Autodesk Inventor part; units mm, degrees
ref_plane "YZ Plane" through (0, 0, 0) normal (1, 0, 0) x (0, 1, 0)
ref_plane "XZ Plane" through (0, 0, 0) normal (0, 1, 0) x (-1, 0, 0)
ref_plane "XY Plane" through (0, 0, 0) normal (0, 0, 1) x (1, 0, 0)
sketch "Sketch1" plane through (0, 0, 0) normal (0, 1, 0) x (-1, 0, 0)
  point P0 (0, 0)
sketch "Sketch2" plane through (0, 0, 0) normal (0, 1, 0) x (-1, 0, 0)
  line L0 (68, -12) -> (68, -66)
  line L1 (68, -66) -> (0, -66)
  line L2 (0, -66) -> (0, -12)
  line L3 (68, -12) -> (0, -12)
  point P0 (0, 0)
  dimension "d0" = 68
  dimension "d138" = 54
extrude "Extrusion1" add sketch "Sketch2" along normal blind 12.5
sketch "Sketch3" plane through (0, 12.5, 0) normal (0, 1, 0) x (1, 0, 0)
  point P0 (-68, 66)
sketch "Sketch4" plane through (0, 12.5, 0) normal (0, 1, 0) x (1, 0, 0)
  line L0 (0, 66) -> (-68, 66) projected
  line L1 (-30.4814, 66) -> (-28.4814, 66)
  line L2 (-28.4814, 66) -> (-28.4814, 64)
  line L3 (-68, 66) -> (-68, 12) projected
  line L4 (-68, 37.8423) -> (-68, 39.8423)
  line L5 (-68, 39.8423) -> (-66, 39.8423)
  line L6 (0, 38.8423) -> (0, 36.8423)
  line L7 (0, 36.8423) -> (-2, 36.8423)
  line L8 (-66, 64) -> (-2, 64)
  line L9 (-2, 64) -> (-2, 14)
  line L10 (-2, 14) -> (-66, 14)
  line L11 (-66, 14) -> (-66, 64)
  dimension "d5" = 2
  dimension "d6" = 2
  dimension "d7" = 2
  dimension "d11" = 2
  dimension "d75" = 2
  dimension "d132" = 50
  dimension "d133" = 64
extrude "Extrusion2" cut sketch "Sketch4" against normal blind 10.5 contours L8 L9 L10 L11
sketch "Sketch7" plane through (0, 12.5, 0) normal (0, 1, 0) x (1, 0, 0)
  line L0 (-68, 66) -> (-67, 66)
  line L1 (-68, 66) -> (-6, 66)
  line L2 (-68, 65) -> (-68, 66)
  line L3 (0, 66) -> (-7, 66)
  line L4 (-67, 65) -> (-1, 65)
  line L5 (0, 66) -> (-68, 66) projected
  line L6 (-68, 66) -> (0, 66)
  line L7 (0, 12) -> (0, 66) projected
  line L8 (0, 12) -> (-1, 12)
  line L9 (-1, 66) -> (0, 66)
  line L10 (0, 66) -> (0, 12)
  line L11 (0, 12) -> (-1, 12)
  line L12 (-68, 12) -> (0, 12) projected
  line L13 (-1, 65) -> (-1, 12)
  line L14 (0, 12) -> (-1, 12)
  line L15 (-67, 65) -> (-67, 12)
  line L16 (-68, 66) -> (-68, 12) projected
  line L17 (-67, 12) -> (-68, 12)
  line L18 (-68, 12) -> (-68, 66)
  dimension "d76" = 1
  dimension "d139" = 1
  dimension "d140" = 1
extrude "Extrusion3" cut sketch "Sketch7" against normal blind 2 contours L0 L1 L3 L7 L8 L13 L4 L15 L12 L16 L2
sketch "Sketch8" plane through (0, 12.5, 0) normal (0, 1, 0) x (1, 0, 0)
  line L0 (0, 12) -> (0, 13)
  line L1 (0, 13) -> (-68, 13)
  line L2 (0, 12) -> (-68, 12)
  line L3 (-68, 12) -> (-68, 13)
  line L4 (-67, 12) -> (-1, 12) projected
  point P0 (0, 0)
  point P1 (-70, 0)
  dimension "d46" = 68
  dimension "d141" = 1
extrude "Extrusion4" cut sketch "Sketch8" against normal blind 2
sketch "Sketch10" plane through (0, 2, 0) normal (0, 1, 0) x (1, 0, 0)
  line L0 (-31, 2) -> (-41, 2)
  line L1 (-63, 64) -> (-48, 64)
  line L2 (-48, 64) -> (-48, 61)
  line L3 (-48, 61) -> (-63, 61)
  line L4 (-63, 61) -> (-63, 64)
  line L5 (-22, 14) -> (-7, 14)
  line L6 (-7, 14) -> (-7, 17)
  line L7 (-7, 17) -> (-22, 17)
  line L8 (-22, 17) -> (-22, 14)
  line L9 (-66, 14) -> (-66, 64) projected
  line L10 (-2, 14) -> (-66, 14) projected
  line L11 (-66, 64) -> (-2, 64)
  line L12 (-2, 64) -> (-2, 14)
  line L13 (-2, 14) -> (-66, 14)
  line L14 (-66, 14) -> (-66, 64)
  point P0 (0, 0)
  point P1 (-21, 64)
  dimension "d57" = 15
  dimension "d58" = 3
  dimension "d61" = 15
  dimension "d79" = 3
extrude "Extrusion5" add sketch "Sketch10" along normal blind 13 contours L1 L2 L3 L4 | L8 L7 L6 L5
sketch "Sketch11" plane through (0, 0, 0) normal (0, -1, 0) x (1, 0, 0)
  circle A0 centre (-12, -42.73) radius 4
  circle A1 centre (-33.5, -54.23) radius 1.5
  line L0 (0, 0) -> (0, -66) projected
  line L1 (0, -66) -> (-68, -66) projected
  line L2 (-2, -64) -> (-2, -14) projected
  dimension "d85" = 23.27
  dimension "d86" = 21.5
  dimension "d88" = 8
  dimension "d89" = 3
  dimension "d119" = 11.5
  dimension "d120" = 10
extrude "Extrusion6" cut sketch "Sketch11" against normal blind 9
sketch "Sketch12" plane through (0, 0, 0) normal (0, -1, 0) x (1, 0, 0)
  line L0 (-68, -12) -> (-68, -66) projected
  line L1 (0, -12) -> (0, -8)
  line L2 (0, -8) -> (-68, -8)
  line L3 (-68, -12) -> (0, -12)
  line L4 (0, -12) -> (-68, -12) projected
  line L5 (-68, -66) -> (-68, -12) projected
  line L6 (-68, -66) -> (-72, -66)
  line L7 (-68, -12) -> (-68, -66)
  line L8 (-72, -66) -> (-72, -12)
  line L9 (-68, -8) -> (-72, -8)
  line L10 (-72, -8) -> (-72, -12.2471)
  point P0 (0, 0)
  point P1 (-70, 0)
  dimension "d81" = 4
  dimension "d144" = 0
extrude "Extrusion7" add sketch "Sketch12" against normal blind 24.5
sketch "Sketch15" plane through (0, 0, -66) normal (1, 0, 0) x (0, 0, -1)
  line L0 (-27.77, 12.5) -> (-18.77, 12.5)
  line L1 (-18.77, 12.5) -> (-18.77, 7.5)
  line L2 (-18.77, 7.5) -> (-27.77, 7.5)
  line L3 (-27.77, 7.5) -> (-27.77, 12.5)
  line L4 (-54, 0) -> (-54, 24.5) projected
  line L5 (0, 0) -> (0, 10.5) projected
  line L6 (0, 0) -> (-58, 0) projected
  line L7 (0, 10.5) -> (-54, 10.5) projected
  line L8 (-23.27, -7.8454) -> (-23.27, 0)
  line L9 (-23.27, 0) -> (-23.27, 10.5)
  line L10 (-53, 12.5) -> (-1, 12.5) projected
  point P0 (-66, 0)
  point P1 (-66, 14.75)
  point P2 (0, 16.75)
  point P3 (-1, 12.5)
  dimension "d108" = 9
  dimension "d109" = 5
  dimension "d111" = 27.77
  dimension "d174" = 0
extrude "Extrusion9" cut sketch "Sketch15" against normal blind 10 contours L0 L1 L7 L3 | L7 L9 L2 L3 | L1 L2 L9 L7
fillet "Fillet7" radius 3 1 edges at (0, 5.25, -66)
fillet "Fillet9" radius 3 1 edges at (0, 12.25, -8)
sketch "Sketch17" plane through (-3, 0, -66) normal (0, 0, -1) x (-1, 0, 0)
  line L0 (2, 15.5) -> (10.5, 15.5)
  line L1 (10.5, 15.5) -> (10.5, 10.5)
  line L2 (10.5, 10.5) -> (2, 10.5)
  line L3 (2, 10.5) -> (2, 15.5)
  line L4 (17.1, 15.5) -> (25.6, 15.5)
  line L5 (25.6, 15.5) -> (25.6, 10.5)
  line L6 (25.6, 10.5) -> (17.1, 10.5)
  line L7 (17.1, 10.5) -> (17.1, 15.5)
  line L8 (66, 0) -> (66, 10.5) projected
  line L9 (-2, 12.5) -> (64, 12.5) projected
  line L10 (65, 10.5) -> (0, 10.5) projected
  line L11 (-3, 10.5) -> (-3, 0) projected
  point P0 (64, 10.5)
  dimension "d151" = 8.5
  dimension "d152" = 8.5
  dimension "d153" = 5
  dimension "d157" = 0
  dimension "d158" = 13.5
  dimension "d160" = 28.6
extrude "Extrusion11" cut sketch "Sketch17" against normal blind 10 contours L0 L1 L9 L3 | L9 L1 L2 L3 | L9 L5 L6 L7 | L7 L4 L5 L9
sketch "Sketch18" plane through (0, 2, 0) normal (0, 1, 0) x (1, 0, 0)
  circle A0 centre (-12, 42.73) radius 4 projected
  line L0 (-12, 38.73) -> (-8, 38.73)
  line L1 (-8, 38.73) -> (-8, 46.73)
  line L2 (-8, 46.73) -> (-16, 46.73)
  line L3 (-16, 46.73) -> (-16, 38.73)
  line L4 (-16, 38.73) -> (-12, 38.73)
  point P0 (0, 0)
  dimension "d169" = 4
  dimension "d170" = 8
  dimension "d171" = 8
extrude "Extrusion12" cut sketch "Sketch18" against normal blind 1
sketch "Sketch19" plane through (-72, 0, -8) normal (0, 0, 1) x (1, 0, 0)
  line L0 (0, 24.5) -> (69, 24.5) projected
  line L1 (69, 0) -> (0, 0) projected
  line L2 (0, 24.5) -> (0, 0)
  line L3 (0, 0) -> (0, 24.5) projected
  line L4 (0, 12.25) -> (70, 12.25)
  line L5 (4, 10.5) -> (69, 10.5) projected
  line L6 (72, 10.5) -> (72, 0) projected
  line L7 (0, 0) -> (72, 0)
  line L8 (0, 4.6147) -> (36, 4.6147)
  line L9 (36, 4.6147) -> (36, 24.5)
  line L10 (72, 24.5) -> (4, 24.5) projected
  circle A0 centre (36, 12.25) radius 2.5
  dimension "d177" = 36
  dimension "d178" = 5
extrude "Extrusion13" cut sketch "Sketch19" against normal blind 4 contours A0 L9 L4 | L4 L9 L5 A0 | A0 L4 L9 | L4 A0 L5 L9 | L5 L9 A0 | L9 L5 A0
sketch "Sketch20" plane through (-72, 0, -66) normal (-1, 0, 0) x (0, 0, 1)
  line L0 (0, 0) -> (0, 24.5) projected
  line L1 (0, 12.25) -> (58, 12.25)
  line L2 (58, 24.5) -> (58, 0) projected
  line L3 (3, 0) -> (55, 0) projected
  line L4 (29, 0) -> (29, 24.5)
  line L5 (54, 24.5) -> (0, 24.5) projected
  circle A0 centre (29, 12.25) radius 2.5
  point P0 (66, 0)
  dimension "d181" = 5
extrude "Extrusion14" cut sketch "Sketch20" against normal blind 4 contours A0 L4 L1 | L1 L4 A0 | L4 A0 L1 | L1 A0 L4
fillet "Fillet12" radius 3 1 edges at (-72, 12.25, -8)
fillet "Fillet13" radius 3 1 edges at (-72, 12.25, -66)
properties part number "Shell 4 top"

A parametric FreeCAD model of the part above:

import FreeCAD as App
import Part
import Sketcher


def edges_at(feature, points):
    """Names of the edges that pass closest to the given points."""
    edges = feature.Shape.Edges
    near = lambda p: min(range(len(edges)), key=lambda i: edges[i].distToShape(Part.Vertex(*p))[0])
    return sorted({f"Edge{near(p) + 1}" for p in points})

doc = App.newDocument("Part")
body = doc.addObject("PartDesign::Body", "Body")

sketch1 = body.newObject("Sketcher::SketchObject", "Sketch")
sketch1.AttachmentSupport = (doc.getObject("XZ_Plane"), [""])
sketch1.MapMode = "FlatFace"
sketch1.addGeometry([
    Part.LineSegment(App.Vector(-68, -66, 0), App.Vector(-68, -12, 0)),
    Part.LineSegment(App.Vector(-68, -12, 0), App.Vector(0, -12, 0)),
    Part.LineSegment(App.Vector(0, -12, 0), App.Vector(0, -66, 0)),
    Part.LineSegment(App.Vector(0, -66, 0), App.Vector(-68, -66, 0)),
], False)
sketch1.addConstraint([
    Sketcher.Constraint("Coincident", 0, 2, 1, 1),
    Sketcher.Constraint("Coincident", 1, 2, 2, 1),
    Sketcher.Constraint("Coincident", 2, 2, 3, 1),
    Sketcher.Constraint("Coincident", 3, 2, 0, 1),
    Sketcher.Constraint("Vertical", 0),
    Sketcher.Constraint("Horizontal", 1),
    Sketcher.Constraint("Vertical", 2),
    Sketcher.Constraint("Horizontal", 3),
    Sketcher.Constraint("PointOnObject", 1, 2, -2),
    Sketcher.Constraint("DistanceX", 1, 1, 1, 2, 68.0),
    Sketcher.Constraint("DistanceY", 0, 1, 0, 2, 54.0),
    Sketcher.Constraint("DistanceY", 0, 2, -1, 1, 12.0),
])
pad1 = body.newObject("PartDesign::Pad", "Pad")
pad1.Profile = sketch1
pad1.Length = 12.5
pad1.Reversed = True

sketch2 = body.newObject("Sketcher::SketchObject", "Sketch001")
sketch2.AttachmentSupport = (doc.getObject("XZ_Plane"), [""])
sketch2.MapMode = "FlatFace"
sketch2.AttachmentOffset = App.Placement(App.Vector(0, 0, -12.5), App.Rotation())
sketch2.addGeometry([
    Part.LineSegment(App.Vector(-2, -64, 0), App.Vector(-66, -64, 0)),
    Part.LineSegment(App.Vector(-66, -64, 0), App.Vector(-66, -14, 0)),
    Part.LineSegment(App.Vector(-66, -14, 0), App.Vector(-2, -14, 0)),
    Part.LineSegment(App.Vector(-2, -14, 0), App.Vector(-2, -64, 0)),
], False)
sketch2.addConstraint([
    Sketcher.Constraint("Coincident", 0, 2, 1, 1),
    Sketcher.Constraint("Coincident", 1, 2, 2, 1),
    Sketcher.Constraint("Coincident", 2, 2, 3, 1),
    Sketcher.Constraint("Coincident", 3, 2, 0, 1),
    Sketcher.Constraint("Horizontal", 0),
    Sketcher.Constraint("Vertical", 1),
    Sketcher.Constraint("Horizontal", 2),
    Sketcher.Constraint("Vertical", 3),
    Sketcher.Constraint("DistanceX", 0, 2, 0, 1, 64.0),
    Sketcher.Constraint("DistanceY", 1, 1, 1, 2, 50.0),
    Sketcher.Constraint("DistanceY", 0, 2, -1, 1, 64.0),
    Sketcher.Constraint("DistanceX", 2, 2, -1, 1, 2.0),
])
pocket1 = body.newObject("PartDesign::Pocket", "Pocket")
pocket1.Profile = sketch2
pocket1.Length = 10.5
pocket1.Reversed = True

sketch3 = body.newObject("Sketcher::SketchObject", "Sketch002")
sketch3.AttachmentSupport = (doc.getObject("XZ_Plane"), [""])
sketch3.MapMode = "FlatFace"
sketch3.AttachmentOffset = App.Placement(App.Vector(0, 0, -12.5), App.Rotation())
sketch3.addGeometry([
    Part.LineSegment(App.Vector(0, -66, 0), App.Vector(-68, -66, 0)),
    Part.LineSegment(App.Vector(-68, -66, 0), App.Vector(-68, -12, 0)),
    Part.LineSegment(App.Vector(-68, -12, 0), App.Vector(-67, -12, 0)),
    Part.LineSegment(App.Vector(-67, -12, 0), App.Vector(-67, -65, 0)),
    Part.LineSegment(App.Vector(-67, -65, 0), App.Vector(-1, -65, 0)),
    Part.LineSegment(App.Vector(-1, -65, 0), App.Vector(-1, -12, 0)),
    Part.LineSegment(App.Vector(-1, -12, 0), App.Vector(0, -12, 0)),
    Part.LineSegment(App.Vector(0, -12, 0), App.Vector(0, -66, 0)),
], False)
sketch3.addConstraint([
    Sketcher.Constraint("Coincident", 0, 2, 1, 1),
    Sketcher.Constraint("Coincident", 1, 2, 2, 1),
    Sketcher.Constraint("Coincident", 2, 2, 3, 1),
    Sketcher.Constraint("Coincident", 3, 2, 4, 1),
    Sketcher.Constraint("Coincident", 4, 2, 5, 1),
    Sketcher.Constraint("Coincident", 5, 2, 6, 1),
    Sketcher.Constraint("Coincident", 6, 2, 7, 1),
    Sketcher.Constraint("Coincident", 7, 2, 0, 1),
    Sketcher.Constraint("Horizontal", 0),
    Sketcher.Constraint("Vertical", 1),
    Sketcher.Constraint("Horizontal", 2),
    Sketcher.Constraint("Vertical", 3),
    Sketcher.Constraint("Horizontal", 4),
    Sketcher.Constraint("Vertical", 5),
    Sketcher.Constraint("Horizontal", 6),
    Sketcher.Constraint("Vertical", 7),
    Sketcher.Constraint("PointOnObject", 6, 2, -2),
    Sketcher.Constraint("Horizontal", 2, 2, 5, 2),
    Sketcher.Constraint("Equal", 2, 6),
    Sketcher.Constraint("DistanceX", 2, 1, 2, 2, 1.0),
    Sketcher.Constraint("DistanceY", 0, 2, 3, 2, 1.0),
    Sketcher.Constraint("DistanceX", 0, 2, 0, 1, 68.0),
    Sketcher.Constraint("DistanceY", 1, 1, 1, 2, 54.0),
    Sketcher.Constraint("DistanceY", 0, 2, -1, 1, 66.0),
])
pocket2 = body.newObject("PartDesign::Pocket", "Pocket001")
pocket2.Profile = sketch3
pocket2.Length = 2
pocket2.Reversed = True

sketch4 = body.newObject("Sketcher::SketchObject", "Sketch003")
sketch4.AttachmentSupport = (doc.getObject("XZ_Plane"), [""])
sketch4.MapMode = "FlatFace"
sketch4.AttachmentOffset = App.Placement(App.Vector(0, 0, -12.5), App.Rotation())
sketch4.addGeometry([
    Part.LineSegment(App.Vector(-68, -12, 0), App.Vector(0, -12, 0)),
    Part.LineSegment(App.Vector(0, -12, 0), App.Vector(0, -13, 0)),
    Part.LineSegment(App.Vector(0, -13, 0), App.Vector(-68, -13, 0)),
    Part.LineSegment(App.Vector(-68, -13, 0), App.Vector(-68, -12, 0)),
], False)
sketch4.addConstraint([
    Sketcher.Constraint("Coincident", 0, 2, 1, 1),
    Sketcher.Constraint("Coincident", 1, 2, 2, 1),
    Sketcher.Constraint("Coincident", 2, 2, 3, 1),
    Sketcher.Constraint("Coincident", 3, 2, 0, 1),
    Sketcher.Constraint("Horizontal", 0),
    Sketcher.Constraint("Vertical", 1),
    Sketcher.Constraint("Horizontal", 2),
    Sketcher.Constraint("Vertical", 3),
    Sketcher.Constraint("PointOnObject", 0, 2, -2),
    Sketcher.Constraint("DistanceX", 0, 1, 0, 2, 68.0),
    Sketcher.Constraint("DistanceY", 1, 2, 1, 1, 1.0),
    Sketcher.Constraint("DistanceY", 0, 2, -1, 1, 12.0),
])
pocket3 = body.newObject("PartDesign::Pocket", "Pocket002")
pocket3.Profile = sketch4
pocket3.Length = 2
pocket3.Reversed = True

sketch5 = body.newObject("Sketcher::SketchObject", "Sketch004")
sketch5.AttachmentSupport = (doc.getObject("XZ_Plane"), [""])
sketch5.MapMode = "FlatFace"
sketch5.AttachmentOffset = App.Placement(App.Vector(0, 0, -2), App.Rotation())
sketch5.addGeometry([
    Part.LineSegment(App.Vector(-48, -64, 0), App.Vector(-63, -64, 0)),
    Part.LineSegment(App.Vector(-63, -64, 0), App.Vector(-63, -61, 0)),
    Part.LineSegment(App.Vector(-63, -61, 0), App.Vector(-48, -61, 0)),
    Part.LineSegment(App.Vector(-48, -61, 0), App.Vector(-48, -64, 0)),
    Part.LineSegment(App.Vector(-22, -17, 0), App.Vector(-22, -14, 0)),
    Part.LineSegment(App.Vector(-22, -14, 0), App.Vector(-7, -14, 0)),
    Part.LineSegment(App.Vector(-7, -14, 0), App.Vector(-7, -17, 0)),
    Part.LineSegment(App.Vector(-7, -17, 0), App.Vector(-22, -17, 0)),
], False)
sketch5.addConstraint([
    Sketcher.Constraint("Coincident", 0, 2, 1, 1),
    Sketcher.Constraint("Coincident", 1, 2, 2, 1),
    Sketcher.Constraint("Coincident", 2, 2, 3, 1),
    Sketcher.Constraint("Coincident", 3, 2, 0, 1),
    Sketcher.Constraint("Coincident", 4, 2, 5, 1),
    Sketcher.Constraint("Coincident", 5, 2, 6, 1),
    Sketcher.Constraint("Coincident", 6, 2, 7, 1),
    Sketcher.Constraint("Coincident", 7, 2, 4, 1),
    Sketcher.Constraint("Horizontal", 0),
    Sketcher.Constraint("Vertical", 1),
    Sketcher.Constraint("Horizontal", 2),
    Sketcher.Constraint("Vertical", 3),
    Sketcher.Constraint("Vertical", 4),
    Sketcher.Constraint("Horizontal", 5),
    Sketcher.Constraint("Vertical", 6),
    Sketcher.Constraint("Horizontal", 7),
    Sketcher.Constraint("Equal", 2, 5),
    Sketcher.Constraint("Equal", 3, 4),
    Sketcher.Constraint("DistanceX", 0, 2, 0, 1, 15.0),
    Sketcher.Constraint("DistanceY", 1, 1, 1, 2, 3.0),
    Sketcher.Constraint("DistanceX", 0, 2, -1, 1, 63.0),
    Sketcher.Constraint("DistanceY", 0, 2, -1, 1, 64.0),
    Sketcher.Constraint("DistanceX", 4, 2, -1, 1, 22.0),
    Sketcher.Constraint("DistanceY", 4, 2, -1, 1, 14.0),
])
pad2 = body.newObject("PartDesign::Pad", "Pad001")
pad2.Profile = sketch5
pad2.Length = 13
pad2.Reversed = True

sketch6 = body.newObject("Sketcher::SketchObject", "Sketch005")
sketch6.AttachmentSupport = (doc.getObject("XZ_Plane"), [""])
sketch6.MapMode = "FlatFace"
sketch6.addGeometry([
    Part.Circle(App.Vector(-12, -42.73, 0), App.Vector(0, 0, 1), 4),
    Part.Circle(App.Vector(-33.5, -54.23, 0), App.Vector(0, 0, 1), 1.5),
], False)
sketch6.addConstraint([
    Sketcher.Constraint("Diameter", 0, 8.0),
    Sketcher.Constraint("Diameter", 1, 3.0),
    Sketcher.Constraint("DistanceX", 1, 3, 0, 3, 21.5),
    Sketcher.Constraint("DistanceY", 1, 3, 0, 3, 11.5),
    Sketcher.Constraint("DistanceX", 0, 3, -1, 1, 12.0),
    Sketcher.Constraint("DistanceY", 0, 3, -1, 1, 42.73),
])
pocket4 = body.newObject("PartDesign::Pocket", "Pocket003")
pocket4.Profile = sketch6
pocket4.Length = 9

sketch7 = body.newObject("Sketcher::SketchObject", "Sketch006")
sketch7.AttachmentSupport = (doc.getObject("XZ_Plane"), [""])
sketch7.MapMode = "FlatFace"
sketch7.addGeometry([
    Part.LineSegment(App.Vector(-68, -66, 0), App.Vector(-68, -12, 0)),
    Part.LineSegment(App.Vector(-68, -12, 0), App.Vector(0, -12, 0)),
    Part.LineSegment(App.Vector(0, -12, 0), App.Vector(0, -8, 0)),
    Part.LineSegment(App.Vector(0, -8, 0), App.Vector(-72, -8, 0)),
    Part.LineSegment(App.Vector(-72, -8, 0), App.Vector(-72, -66, 0)),
    Part.LineSegment(App.Vector(-72, -66, 0), App.Vector(-68, -66, 0)),
], False)
sketch7.addConstraint([
    Sketcher.Constraint("Coincident", 0, 2, 1, 1),
    Sketcher.Constraint("Coincident", 1, 2, 2, 1),
    Sketcher.Constraint("Coincident", 2, 2, 3, 1),
    Sketcher.Constraint("Coincident", 3, 2, 4, 1),
    Sketcher.Constraint("Coincident", 4, 2, 5, 1),
    Sketcher.Constraint("Coincident", 5, 2, 0, 1),
    Sketcher.Constraint("Vertical", 0),
    Sketcher.Constraint("Horizontal", 1),
    Sketcher.Constraint("Vertical", 2),
    Sketcher.Constraint("Horizontal", 3),
    Sketcher.Constraint("Vertical", 4),
    Sketcher.Constraint("Horizontal", 5),
    Sketcher.Constraint("PointOnObject", 1, 2, -2),
    Sketcher.Constraint("Equal", 5, 2),
    Sketcher.Constraint("DistanceX", 5, 1, 5, 2, 4.0),
    Sketcher.Constraint("DistanceX", 1, 1, 1, 2, 68.0),
    Sketcher.Constraint("DistanceY", 0, 1, 0, 2, 54.0),
    Sketcher.Constraint("DistanceY", 0, 2, -1, 1, 12.0),
])
pad3 = body.newObject("PartDesign::Pad", "Pad002")
pad3.Profile = sketch7
pad3.Length = 24.5
pad3.Reversed = True

sketch8 = body.newObject("Sketcher::SketchObject", "Sketch007")
sketch8.AttachmentSupport = (doc.getObject("YZ_Plane"), [""])
sketch8.MapMode = "FlatFace"
sketch8.addGeometry([
    Part.LineSegment(App.Vector(12.5, -47.23, 0), App.Vector(12.5, -38.23, 0)),
    Part.LineSegment(App.Vector(12.5, -38.23, 0), App.Vector(7.5, -38.23, 0)),
    Part.LineSegment(App.Vector(7.5, -38.23, 0), App.Vector(7.5, -47.23, 0)),
    Part.LineSegment(App.Vector(7.5, -47.23, 0), App.Vector(12.5, -47.23, 0)),
], False)
sketch8.addConstraint([
    Sketcher.Constraint("Coincident", 0, 2, 1, 1),
    Sketcher.Constraint("Coincident", 1, 2, 2, 1),
    Sketcher.Constraint("Coincident", 2, 2, 3, 1),
    Sketcher.Constraint("Coincident", 3, 2, 0, 1),
    Sketcher.Constraint("Vertical", 0),
    Sketcher.Constraint("Horizontal", 1),
    Sketcher.Constraint("Vertical", 2),
    Sketcher.Constraint("Horizontal", 3),
    Sketcher.Constraint("DistanceX", 1, 2, 1, 1, 5.0),
    Sketcher.Constraint("DistanceY", 0, 1, 0, 2, 9.0),
    Sketcher.Constraint("DistanceX", -1, 1, 0, 2, 12.5),
    Sketcher.Constraint("DistanceY", 0, 2, -1, 1, 38.23),
])
pocket5 = body.newObject("PartDesign::Pocket", "Pocket004")
pocket5.Profile = sketch8
pocket5.Length = 10
doc.recompute()

fillet = body.newObject("PartDesign::Fillet", "Fillet")
fillet.Base = (pocket5, edges_at(pocket5, [(0, 5.25, -66)]))
fillet.Radius = 3
doc.recompute()

fillet2 = body.newObject("PartDesign::Fillet", "Fillet001")
fillet2.Base = (fillet, edges_at(fillet, [(0, 12.25, -8)]))
fillet2.Radius = 3

sketch9 = body.newObject("Sketcher::SketchObject", "Sketch008")
sketch9.AttachmentSupport = (doc.getObject("XY_Plane"), [""])
sketch9.MapMode = "FlatFace"
sketch9.AttachmentOffset = App.Placement(App.Vector(0, 0, -66), App.Rotation())
sketch9.addGeometry([
    Part.LineSegment(App.Vector(-13.5, 15.5, 0), App.Vector(-5, 15.5, 0)),
    Part.LineSegment(App.Vector(-5, 15.5, 0), App.Vector(-5, 10.5, 0)),
    Part.LineSegment(App.Vector(-5, 10.5, 0), App.Vector(-13.5, 10.5, 0)),
    Part.LineSegment(App.Vector(-13.5, 10.5, 0), App.Vector(-13.5, 15.5, 0)),
    Part.LineSegment(App.Vector(-28.6, 10.5, 0), App.Vector(-28.6, 15.5, 0)),
    Part.LineSegment(App.Vector(-28.6, 15.5, 0), App.Vector(-20.1, 15.5, 0)),
    Part.LineSegment(App.Vector(-20.1, 15.5, 0), App.Vector(-20.1, 10.5, 0)),
    Part.LineSegment(App.Vector(-20.1, 10.5, 0), App.Vector(-28.6, 10.5, 0)),
], False)
sketch9.addConstraint([
    Sketcher.Constraint("Coincident", 0, 2, 1, 1),
    Sketcher.Constraint("Coincident", 1, 2, 2, 1),
    Sketcher.Constraint("Coincident", 2, 2, 3, 1),
    Sketcher.Constraint("Coincident", 3, 2, 0, 1),
    Sketcher.Constraint("Coincident", 4, 2, 5, 1),
    Sketcher.Constraint("Coincident", 5, 2, 6, 1),
    Sketcher.Constraint("Coincident", 6, 2, 7, 1),
    Sketcher.Constraint("Coincident", 7, 2, 4, 1),
    Sketcher.Constraint("Horizontal", 0),
    Sketcher.Constraint("Vertical", 1),
    Sketcher.Constraint("Horizontal", 2),
    Sketcher.Constraint("Vertical", 3),
    Sketcher.Constraint("Vertical", 4),
    Sketcher.Constraint("Horizontal", 5),
    Sketcher.Constraint("Vertical", 6),
    Sketcher.Constraint("Horizontal", 7),
    Sketcher.Constraint("Horizontal", 3, 2, 4, 2),
    Sketcher.Constraint("Horizontal", 2, 2, 6, 2),
    Sketcher.Constraint("Equal", 2, 5),
    Sketcher.Constraint("DistanceY", 1, 2, 1, 1, 5.0),
    Sketcher.Constraint("DistanceX", 0, 1, 0, 2, 8.5),
    Sketcher.Constraint("DistanceX", 0, 2, -1, 1, 5.0),
    Sketcher.Constraint("DistanceX", 4, 2, -1, 1, 28.6),
    Sketcher.Constraint("DistanceY", -1, 1, 0, 2, 15.5),
])
pocket6 = body.newObject("PartDesign::Pocket", "Pocket005")
pocket6.Profile = sketch9
pocket6.Length = 10
pocket6.Reversed = True

sketch10 = body.newObject("Sketcher::SketchObject", "Sketch009")
sketch10.AttachmentSupport = (doc.getObject("XZ_Plane"), [""])
sketch10.MapMode = "FlatFace"
sketch10.AttachmentOffset = App.Placement(App.Vector(0, 0, -2), App.Rotation())
sketch10.addGeometry([
    Part.LineSegment(App.Vector(-16, -38.73, 0), App.Vector(-8, -38.73, 0)),
    Part.LineSegment(App.Vector(-8, -38.73, 0), App.Vector(-8, -46.73, 0)),
    Part.LineSegment(App.Vector(-8, -46.73, 0), App.Vector(-16, -46.73, 0)),
    Part.LineSegment(App.Vector(-16, -46.73, 0), App.Vector(-16, -38.73, 0)),
], False)
sketch10.addConstraint([
    Sketcher.Constraint("Coincident", 0, 2, 1, 1),
    Sketcher.Constraint("Coincident", 1, 2, 2, 1),
    Sketcher.Constraint("Coincident", 2, 2, 3, 1),
    Sketcher.Constraint("Coincident", 3, 2, 0, 1),
    Sketcher.Constraint("Horizontal", 0),
    Sketcher.Constraint("Vertical", 1),
    Sketcher.Constraint("Horizontal", 2),
    Sketcher.Constraint("Vertical", 3),
    Sketcher.Constraint("Equal", 2, 1),
    Sketcher.Constraint("DistanceX", 0, 1, 0, 2, 8.0),
    Sketcher.Constraint("DistanceX", 0, 2, -1, 1, 8.0),
    Sketcher.Constraint("DistanceY", 0, 2, -1, 1, 38.73),
])
pocket7 = body.newObject("PartDesign::Pocket", "Pocket006")
pocket7.Profile = sketch10
pocket7.Length = 1
pocket7.Reversed = True

sketch11 = body.newObject("Sketcher::SketchObject", "Sketch010")
sketch11.AttachmentSupport = (doc.getObject("XY_Plane"), [""])
sketch11.MapMode = "FlatFace"
sketch11.AttachmentOffset = App.Placement(App.Vector(0, 0, -8), App.Rotation())
sketch11.addGeometry(Part.Circle(App.Vector(-36, 12.25, 0), App.Vector(0, 0, 1), 2.5), False)
sketch11.addConstraint([
    Sketcher.Constraint("Diameter", 0, 5.0),
    Sketcher.Constraint("DistanceX", 0, 3, -1, 1, 36.0),
    Sketcher.Constraint("DistanceY", -1, 1, 0, 3, 12.25),
])
pocket8 = body.newObject("PartDesign::Pocket", "Pocket007")
pocket8.Profile = sketch11
pocket8.Length = 4

sketch12 = body.newObject("Sketcher::SketchObject", "Sketch011")
sketch12.AttachmentSupport = (doc.getObject("YZ_Plane"), [""])
sketch12.MapMode = "FlatFace"
sketch12.AttachmentOffset = App.Placement(App.Vector(0, 0, -72), App.Rotation())
sketch12.addGeometry(Part.Circle(App.Vector(12.25, -37, 0), App.Vector(0, 0, 1), 2.5), False)
sketch12.addConstraint([
    Sketcher.Constraint("Diameter", 0, 5.0),
    Sketcher.Constraint("DistanceY", 0, 3, -1, 1, 37.0),
    Sketcher.Constraint("DistanceX", -1, 1, 0, 3, 12.25),
])
pocket9 = body.newObject("PartDesign::Pocket", "Pocket008")
pocket9.Profile = sketch12
pocket9.Length = 4
pocket9.Reversed = True
doc.recompute()

fillet3 = body.newObject("PartDesign::Fillet", "Fillet002")
fillet3.Base = (pocket9, edges_at(pocket9, [(-72, 12.25, -8)]))
fillet3.Radius = 3
doc.recompute()

fillet4 = body.newObject("PartDesign::Fillet", "Fillet003")
fillet4.Base = (fillet3, edges_at(fillet3, [(-72, 12.25, -66)]))
fillet4.Radius = 3

doc.recompute()
